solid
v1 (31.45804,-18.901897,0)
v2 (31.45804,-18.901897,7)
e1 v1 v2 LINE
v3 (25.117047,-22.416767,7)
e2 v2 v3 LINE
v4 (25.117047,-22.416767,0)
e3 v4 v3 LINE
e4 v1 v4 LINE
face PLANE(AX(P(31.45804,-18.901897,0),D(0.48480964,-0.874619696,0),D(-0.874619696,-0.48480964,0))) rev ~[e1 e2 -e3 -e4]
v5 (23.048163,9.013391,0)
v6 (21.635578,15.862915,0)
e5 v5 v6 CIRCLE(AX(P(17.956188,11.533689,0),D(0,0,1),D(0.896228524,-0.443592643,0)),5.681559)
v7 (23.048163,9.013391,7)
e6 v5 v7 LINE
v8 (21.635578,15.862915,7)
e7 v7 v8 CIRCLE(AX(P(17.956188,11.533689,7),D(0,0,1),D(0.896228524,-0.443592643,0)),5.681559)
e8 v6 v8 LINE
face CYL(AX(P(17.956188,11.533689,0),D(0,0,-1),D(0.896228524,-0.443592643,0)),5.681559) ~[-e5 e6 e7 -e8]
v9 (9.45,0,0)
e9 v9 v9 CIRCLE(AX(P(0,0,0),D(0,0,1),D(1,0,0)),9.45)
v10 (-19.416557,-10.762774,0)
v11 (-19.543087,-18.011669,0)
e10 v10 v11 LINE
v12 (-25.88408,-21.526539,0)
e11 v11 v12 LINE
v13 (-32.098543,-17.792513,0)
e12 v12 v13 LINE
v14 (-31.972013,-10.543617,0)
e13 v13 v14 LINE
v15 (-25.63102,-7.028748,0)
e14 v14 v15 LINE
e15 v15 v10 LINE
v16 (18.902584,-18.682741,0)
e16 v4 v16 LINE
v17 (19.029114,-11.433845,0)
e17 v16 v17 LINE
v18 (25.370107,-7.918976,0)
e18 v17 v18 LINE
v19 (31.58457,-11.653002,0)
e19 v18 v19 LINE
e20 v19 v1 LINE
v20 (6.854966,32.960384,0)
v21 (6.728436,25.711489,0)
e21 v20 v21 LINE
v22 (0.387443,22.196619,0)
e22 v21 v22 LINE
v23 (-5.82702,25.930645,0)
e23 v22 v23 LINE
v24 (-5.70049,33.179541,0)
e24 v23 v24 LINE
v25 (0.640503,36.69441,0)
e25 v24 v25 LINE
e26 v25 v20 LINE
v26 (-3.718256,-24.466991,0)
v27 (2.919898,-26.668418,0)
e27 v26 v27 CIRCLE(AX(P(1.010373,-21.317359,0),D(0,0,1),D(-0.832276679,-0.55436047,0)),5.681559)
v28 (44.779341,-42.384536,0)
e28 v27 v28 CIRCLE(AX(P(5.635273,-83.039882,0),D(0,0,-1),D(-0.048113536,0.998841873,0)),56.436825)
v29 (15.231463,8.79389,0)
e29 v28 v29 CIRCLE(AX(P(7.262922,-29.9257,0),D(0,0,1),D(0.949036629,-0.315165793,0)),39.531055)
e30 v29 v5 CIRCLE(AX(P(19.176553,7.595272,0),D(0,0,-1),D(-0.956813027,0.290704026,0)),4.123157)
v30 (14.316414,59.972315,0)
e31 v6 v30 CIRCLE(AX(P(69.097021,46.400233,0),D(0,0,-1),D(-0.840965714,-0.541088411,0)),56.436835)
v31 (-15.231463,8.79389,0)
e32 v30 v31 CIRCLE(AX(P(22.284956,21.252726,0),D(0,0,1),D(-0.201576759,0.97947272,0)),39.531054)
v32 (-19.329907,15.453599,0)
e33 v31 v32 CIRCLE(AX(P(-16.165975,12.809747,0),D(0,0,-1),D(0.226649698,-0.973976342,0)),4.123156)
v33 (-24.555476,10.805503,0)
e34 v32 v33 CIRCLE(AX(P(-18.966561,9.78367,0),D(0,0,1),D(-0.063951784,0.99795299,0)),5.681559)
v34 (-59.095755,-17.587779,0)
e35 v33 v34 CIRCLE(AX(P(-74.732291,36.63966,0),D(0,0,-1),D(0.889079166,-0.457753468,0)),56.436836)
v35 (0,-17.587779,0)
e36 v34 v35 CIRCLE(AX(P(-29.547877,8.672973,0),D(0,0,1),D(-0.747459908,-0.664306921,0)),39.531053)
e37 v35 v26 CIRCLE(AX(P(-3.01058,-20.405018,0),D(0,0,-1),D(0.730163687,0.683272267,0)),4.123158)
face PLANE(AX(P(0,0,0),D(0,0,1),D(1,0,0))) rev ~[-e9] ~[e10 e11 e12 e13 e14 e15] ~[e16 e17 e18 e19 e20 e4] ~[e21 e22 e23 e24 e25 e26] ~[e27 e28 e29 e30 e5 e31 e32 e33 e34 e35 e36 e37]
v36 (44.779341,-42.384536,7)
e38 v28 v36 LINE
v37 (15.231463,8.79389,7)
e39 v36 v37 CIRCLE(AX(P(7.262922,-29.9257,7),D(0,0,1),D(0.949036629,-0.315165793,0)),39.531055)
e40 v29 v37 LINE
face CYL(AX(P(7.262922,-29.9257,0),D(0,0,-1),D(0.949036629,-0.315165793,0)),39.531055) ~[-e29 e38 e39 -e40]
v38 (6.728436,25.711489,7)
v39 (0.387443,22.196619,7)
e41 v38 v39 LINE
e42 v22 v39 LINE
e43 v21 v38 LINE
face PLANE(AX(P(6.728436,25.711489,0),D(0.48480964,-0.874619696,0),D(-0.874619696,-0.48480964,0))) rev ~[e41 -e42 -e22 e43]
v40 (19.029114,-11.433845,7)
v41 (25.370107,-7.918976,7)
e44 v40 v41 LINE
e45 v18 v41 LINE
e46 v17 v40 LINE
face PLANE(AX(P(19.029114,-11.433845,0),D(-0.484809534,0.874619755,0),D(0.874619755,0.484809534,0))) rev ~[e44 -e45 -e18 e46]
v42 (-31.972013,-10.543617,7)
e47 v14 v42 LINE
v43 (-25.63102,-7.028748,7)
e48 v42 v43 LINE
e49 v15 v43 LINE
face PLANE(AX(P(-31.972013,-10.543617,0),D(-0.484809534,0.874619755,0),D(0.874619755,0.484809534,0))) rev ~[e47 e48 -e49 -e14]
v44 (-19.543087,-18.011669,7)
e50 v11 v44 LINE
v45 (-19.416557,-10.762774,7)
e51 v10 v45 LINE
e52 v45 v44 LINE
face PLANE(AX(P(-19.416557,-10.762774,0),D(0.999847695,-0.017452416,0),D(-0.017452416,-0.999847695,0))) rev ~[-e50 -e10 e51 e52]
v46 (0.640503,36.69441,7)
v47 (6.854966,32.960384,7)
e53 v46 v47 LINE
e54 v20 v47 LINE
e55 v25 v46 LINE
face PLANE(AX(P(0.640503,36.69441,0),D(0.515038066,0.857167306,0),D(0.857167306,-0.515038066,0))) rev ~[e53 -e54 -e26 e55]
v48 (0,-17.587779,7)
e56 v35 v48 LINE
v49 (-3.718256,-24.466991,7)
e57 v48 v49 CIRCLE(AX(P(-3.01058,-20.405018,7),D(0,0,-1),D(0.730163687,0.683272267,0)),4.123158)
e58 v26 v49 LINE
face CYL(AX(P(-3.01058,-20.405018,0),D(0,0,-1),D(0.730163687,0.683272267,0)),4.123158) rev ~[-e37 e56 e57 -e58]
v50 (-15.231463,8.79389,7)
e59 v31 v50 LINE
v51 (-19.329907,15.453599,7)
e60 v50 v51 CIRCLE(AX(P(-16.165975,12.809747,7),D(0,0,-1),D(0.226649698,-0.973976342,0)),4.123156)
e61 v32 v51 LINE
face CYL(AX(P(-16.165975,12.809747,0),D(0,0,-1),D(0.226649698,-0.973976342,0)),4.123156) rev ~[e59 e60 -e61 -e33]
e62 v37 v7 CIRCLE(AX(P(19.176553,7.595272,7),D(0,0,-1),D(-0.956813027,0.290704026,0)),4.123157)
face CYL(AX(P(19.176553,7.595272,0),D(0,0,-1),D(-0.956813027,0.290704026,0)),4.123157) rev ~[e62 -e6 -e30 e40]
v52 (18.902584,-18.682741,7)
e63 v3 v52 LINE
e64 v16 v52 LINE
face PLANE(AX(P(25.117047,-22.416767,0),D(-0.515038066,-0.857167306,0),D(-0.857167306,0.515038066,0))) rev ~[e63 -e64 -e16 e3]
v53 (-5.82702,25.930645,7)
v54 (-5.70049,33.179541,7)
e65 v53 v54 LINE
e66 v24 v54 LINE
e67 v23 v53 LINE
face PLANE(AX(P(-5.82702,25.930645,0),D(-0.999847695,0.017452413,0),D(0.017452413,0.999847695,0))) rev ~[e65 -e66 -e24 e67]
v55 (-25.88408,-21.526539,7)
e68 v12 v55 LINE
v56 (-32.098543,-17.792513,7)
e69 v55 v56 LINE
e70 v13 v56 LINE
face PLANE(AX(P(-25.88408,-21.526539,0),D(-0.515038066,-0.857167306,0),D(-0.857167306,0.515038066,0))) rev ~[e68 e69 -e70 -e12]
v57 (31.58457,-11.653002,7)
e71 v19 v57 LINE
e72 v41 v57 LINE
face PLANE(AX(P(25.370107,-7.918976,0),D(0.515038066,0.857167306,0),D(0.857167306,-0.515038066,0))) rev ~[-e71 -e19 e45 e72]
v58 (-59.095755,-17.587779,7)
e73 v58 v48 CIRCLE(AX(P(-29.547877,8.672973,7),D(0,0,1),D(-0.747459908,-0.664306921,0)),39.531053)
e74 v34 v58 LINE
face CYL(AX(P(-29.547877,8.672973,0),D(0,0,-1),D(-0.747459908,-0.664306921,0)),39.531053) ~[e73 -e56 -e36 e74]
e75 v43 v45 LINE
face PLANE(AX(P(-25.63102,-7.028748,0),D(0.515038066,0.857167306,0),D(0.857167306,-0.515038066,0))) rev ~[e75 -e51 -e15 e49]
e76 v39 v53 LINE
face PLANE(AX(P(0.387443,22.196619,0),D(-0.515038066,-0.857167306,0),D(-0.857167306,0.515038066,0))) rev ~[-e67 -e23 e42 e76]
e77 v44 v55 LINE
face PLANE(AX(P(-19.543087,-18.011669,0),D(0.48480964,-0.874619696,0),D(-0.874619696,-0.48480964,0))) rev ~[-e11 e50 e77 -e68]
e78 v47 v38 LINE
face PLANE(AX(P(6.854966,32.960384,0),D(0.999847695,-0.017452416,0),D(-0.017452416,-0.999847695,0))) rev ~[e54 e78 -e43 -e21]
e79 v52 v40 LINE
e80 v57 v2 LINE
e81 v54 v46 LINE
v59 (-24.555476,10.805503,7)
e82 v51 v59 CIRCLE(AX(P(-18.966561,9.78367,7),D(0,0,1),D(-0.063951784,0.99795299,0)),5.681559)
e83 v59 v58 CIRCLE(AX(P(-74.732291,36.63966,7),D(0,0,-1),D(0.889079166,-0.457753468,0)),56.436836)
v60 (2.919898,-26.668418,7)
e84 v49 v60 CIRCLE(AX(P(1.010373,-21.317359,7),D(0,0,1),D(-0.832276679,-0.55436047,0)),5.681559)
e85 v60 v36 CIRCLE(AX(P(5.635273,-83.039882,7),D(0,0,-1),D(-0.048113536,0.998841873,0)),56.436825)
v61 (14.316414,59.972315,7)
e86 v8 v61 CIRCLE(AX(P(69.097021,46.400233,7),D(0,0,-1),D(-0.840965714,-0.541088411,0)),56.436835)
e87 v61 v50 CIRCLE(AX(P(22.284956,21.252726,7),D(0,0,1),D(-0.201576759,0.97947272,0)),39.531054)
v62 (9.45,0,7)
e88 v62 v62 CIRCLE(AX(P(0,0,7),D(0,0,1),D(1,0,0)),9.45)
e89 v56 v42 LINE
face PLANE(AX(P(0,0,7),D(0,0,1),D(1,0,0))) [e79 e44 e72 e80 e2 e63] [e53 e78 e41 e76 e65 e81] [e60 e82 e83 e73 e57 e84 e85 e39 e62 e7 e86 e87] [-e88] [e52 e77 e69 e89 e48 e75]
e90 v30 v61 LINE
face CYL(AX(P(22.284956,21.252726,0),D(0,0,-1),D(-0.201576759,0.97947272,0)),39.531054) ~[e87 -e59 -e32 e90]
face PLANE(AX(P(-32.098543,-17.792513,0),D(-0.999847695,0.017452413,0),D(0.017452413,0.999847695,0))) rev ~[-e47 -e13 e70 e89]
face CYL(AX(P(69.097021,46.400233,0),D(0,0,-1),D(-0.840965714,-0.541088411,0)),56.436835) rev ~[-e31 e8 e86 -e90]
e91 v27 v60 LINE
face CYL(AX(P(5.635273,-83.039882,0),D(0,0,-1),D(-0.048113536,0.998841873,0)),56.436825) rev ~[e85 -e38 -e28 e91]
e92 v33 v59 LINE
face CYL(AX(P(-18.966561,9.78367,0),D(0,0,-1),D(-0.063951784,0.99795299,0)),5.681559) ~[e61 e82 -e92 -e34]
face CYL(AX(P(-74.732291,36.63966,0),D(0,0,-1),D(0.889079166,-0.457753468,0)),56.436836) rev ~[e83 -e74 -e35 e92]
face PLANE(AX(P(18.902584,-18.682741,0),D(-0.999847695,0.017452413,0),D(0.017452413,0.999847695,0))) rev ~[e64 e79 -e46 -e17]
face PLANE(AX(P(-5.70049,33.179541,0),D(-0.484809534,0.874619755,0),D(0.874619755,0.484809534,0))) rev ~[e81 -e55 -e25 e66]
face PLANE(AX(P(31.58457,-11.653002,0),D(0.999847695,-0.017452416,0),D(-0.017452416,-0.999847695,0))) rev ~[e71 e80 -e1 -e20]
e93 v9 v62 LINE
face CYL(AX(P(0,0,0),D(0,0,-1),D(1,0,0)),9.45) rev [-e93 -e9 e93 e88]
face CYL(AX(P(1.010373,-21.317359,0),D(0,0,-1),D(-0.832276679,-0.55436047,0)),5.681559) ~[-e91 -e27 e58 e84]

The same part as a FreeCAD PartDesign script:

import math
import FreeCAD as App
import Part
import Sketcher

V = App.Vector
Q = App.Units.Quantity

doc = App.newDocument("Part")
params = doc.addObject("Spreadsheet::Sheet", "Params")
for row, (alias, value) in enumerate([
    ("sketch1_diameter", "18.9 mm"),
    ("sketch1_length", "7.25 mm"),
    ("pad1_length", "7 mm"),
], start=1):
    params.set(f"A{row}", alias)
    params.set(f"B{row}", "=" + value)
    params.setAlias(f"B{row}", alias)

body = doc.addObject("PartDesign::Body", "Body")

# Sketch on XY plane
sketch1 = body.newObject("Sketcher::SketchObject", "Sketch")
sketch1.AttachmentSupport = (doc.getObject("XY_Plane"), [""])
sketch1.MapMode = "FlatFace"
sketch1.addGeometry(Part.ArcOfCircle(Part.Circle(V(-74.7, 36.6, 0), V(0, 0, 1), 56.4), math.radians(-74), math.radians(-27)), False)
sketch1.addGeometry(Part.ArcOfCircle(Part.Circle(V(-29.5, 8.7, 0), V(0, 0, 1), 39.5), math.radians(-138), math.radians(-42)), False)
sketch1.addGeometry(Part.ArcOfCircle(Part.Circle(V(-3, -20.4, 0), V(0, 0, 1), 4.1), math.radians(-100), math.radians(43)), False)
sketch1.addGeometry(Part.ArcOfCircle(Part.Circle(V(1, -21.3, 0), V(0, 0, 1), 5.7), math.radians(-146), math.radians(-70)), False)
sketch1.addGeometry(Part.ArcOfCircle(Part.Circle(V(5.6, -83, 0), V(0, 0, 1), 56.4), math.radians(46), math.radians(93)), False)
sketch1.addGeometry(Part.ArcOfCircle(Part.Circle(V(7.3, -29.9, 0), V(0, 0, 1), 39.5), math.radians(-18), math.radians(78)), False)
sketch1.addGeometry(Part.ArcOfCircle(Part.Circle(V(19.2, 7.6, 0), V(0, 0, 1), 4.1), math.radians(20), math.radians(163)), False)
sketch1.addGeometry(Part.ArcOfCircle(Part.Circle(V(18, 11.5, 0), V(0, 0, 1), 5.7), math.radians(-26), math.radians(50)), False)
sketch1.addGeometry(Part.ArcOfCircle(Part.Circle(V(69.1, 46.4, 0), V(0, 0, 1), 56.4), math.radians(166), math.radians(213)), False)
sketch1.addGeometry(Part.ArcOfCircle(Part.Circle(V(22.3, 21.3, 0), V(0, 0, 1), 39.5), math.radians(102), math.radians(198)), False)
sketch1.addGeometry(Part.ArcOfCircle(Part.Circle(V(-16.2, 12.8, 0), V(0, 0, 1), 4.1), math.radians(140), math.radians(283)), False)
sketch1.addGeometry(Part.ArcOfCircle(Part.Circle(V(-19, 9.8, 0), V(0, 0, 1), 5.7), math.radians(94), math.radians(170)), False)
sketch1.addGeometry(Part.LineSegment(V(-19.5, -18, 0), V(-25.9, -21.5, 0)), False)
sketch1.addGeometry(Part.LineSegment(V(-25.9, -21.5, 0), V(-32.1, -17.8, 0)), False)
sketch1.addGeometry(Part.LineSegment(V(-32.1, -17.8, 0), V(-32, -10.5, 0)), False)
sketch1.addGeometry(Part.LineSegment(V(-32, -10.5, 0), V(-25.6, -7, 0)), False)
sketch1.addGeometry(Part.LineSegment(V(-25.6, -7, 0), V(-19.4, -10.8, 0)), False)
sketch1.addGeometry(Part.LineSegment(V(-19.4, -10.8, 0), V(-19.5, -18, 0)), False)
sketch1.addGeometry(Part.LineSegment(V(25.4, -7.9, 0), V(31.6, -11.7, 0)), False)
sketch1.addGeometry(Part.LineSegment(V(31.6, -11.7, 0), V(31.5, -18.9, 0)), False)
sketch1.addGeometry(Part.LineSegment(V(31.5, -18.9, 0), V(25.1, -22.4, 0)), False)
sketch1.addGeometry(Part.LineSegment(V(25.1, -22.4, 0), V(18.9, -18.7, 0)), False)
sketch1.addGeometry(Part.LineSegment(V(18.9, -18.7, 0), V(19, -11.4, 0)), False)
sketch1.addGeometry(Part.LineSegment(V(19, -11.4, 0), V(25.4, -7.9, 0)), False)
sketch1.addGeometry(Part.Circle(V(0, 0, 0), V(0, 0, 1), 9.4), False)
sketch1.addGeometry(Part.LineSegment(V(-5.8, 25.9, 0), V(-5.7, 33.2, 0)), False)
sketch1.addGeometry(Part.LineSegment(V(-5.7, 33.2, 0), V(0.6, 36.7, 0)), False)
sketch1.addGeometry(Part.LineSegment(V(0.6, 36.7, 0), V(6.9, 33, 0)), False)
sketch1.addGeometry(Part.LineSegment(V(6.9, 33, 0), V(6.7, 25.7, 0)), False)
sketch1.addGeometry(Part.LineSegment(V(6.7, 25.7, 0), V(0.4, 22.2, 0)), False)
sketch1.addGeometry(Part.LineSegment(V(0.4, 22.2, 0), V(-5.8, 25.9, 0)), False)
sketch1.addConstraint(Sketcher.Constraint("Coincident", 0, 1, 1, 1))
sketch1.addConstraint(Sketcher.Constraint("Coincident", 1, 2, 2, 2))
sketch1.addConstraint(Sketcher.Constraint("Coincident", 2, 1, 3, 1))
sketch1.addConstraint(Sketcher.Constraint("Coincident", 3, 2, 4, 2))
sketch1.addConstraint(Sketcher.Constraint("Coincident", 4, 1, 5, 1))
sketch1.addConstraint(Sketcher.Constraint("Coincident", 5, 2, 6, 2))
sketch1.addConstraint(Sketcher.Constraint("Coincident", 6, 1, 7, 1))
sketch1.addConstraint(Sketcher.Constraint("Coincident", 7, 2, 8, 2))
sketch1.addConstraint(Sketcher.Constraint("Coincident", 8, 1, 9, 1))
sketch1.addConstraint(Sketcher.Constraint("Coincident", 9, 2, 10, 2))
sketch1.addConstraint(Sketcher.Constraint("Coincident", 10, 1, 11, 1))
sketch1.addConstraint(Sketcher.Constraint("Coincident", 11, 2, 0, 2))
sketch1.addConstraint(Sketcher.Constraint("Coincident", 12, 2, 13, 1))
sketch1.addConstraint(Sketcher.Constraint("Coincident", 13, 2, 14, 1))
sketch1.addConstraint(Sketcher.Constraint("Coincident", 14, 2, 15, 1))
sketch1.addConstraint(Sketcher.Constraint("Coincident", 15, 2, 16, 1))
sketch1.addConstraint(Sketcher.Constraint("Coincident", 16, 2, 17, 1))
sketch1.addConstraint(Sketcher.Constraint("Coincident", 17, 2, 12, 1))
sketch1.addConstraint(Sketcher.Constraint("Coincident", 18, 2, 19, 1))
sketch1.addConstraint(Sketcher.Constraint("Coincident", 19, 2, 20, 1))
sketch1.addConstraint(Sketcher.Constraint("Coincident", 20, 2, 21, 1))
sketch1.addConstraint(Sketcher.Constraint("Coincident", 21, 2, 22, 1))
sketch1.addConstraint(Sketcher.Constraint("Coincident", 22, 2, 23, 1))
sketch1.addConstraint(Sketcher.Constraint("Coincident", 23, 2, 18, 1))
sketch1.addConstraint(Sketcher.Constraint("Coincident", 25, 2, 26, 1))
sketch1.addConstraint(Sketcher.Constraint("Coincident", 26, 2, 27, 1))
sketch1.addConstraint(Sketcher.Constraint("Coincident", 27, 2, 28, 1))
sketch1.addConstraint(Sketcher.Constraint("Coincident", 28, 2, 29, 1))
sketch1.addConstraint(Sketcher.Constraint("Coincident", 29, 2, 30, 1))
sketch1.addConstraint(Sketcher.Constraint("Coincident", 30, 2, 25, 1))
sketch1.addConstraint(Sketcher.Constraint("Coincident", 24, 3, -1, 1))
sketch1.addConstraint(Sketcher.Constraint("Equal", 1, 5))
sketch1.addConstraint(Sketcher.Constraint("Equal", 2, 6))
sketch1.addConstraint(Sketcher.Constraint("Equal", 3, 7))
sketch1.addConstraint(Sketcher.Constraint("Equal", 0, 8))
sketch1.addConstraint(Sketcher.Constraint("Equal", 5, 9))
sketch1.addConstraint(Sketcher.Constraint("Equal", 6, 10))
sketch1.addConstraint(Sketcher.Constraint("Equal", 7, 11))
sketch1.addConstraint(Sketcher.Constraint("Symmetric", 5, 2, 9, 2, -2))
sketch1.addConstraint(Sketcher.Constraint("PointOnObject", 1, 2, -2))
sketch1.addConstraint(Sketcher.Constraint("Parallel", 12, 15))
sketch1.addConstraint(Sketcher.Constraint("Parallel", 13, 16))
sketch1.addConstraint(Sketcher.Constraint("Parallel", 14, 17))
sketch1.addConstraint(Sketcher.Constraint("Parallel", 16, 18))
sketch1.addConstraint(Sketcher.Constraint("Parallel", 17, 19))
sketch1.addConstraint(Sketcher.Constraint("Parallel", 15, 20))
sketch1.addConstraint(Sketcher.Constraint("Parallel", 18, 21))
sketch1.addConstraint(Sketcher.Constraint("Parallel", 19, 22))
sketch1.addConstraint(Sketcher.Constraint("Parallel", 20, 23))
sketch1.addConstraint(Sketcher.Constraint("Parallel", 22, 25))
sketch1.addConstraint(Sketcher.Constraint("Parallel", 23, 26))
sketch1.addConstraint(Sketcher.Constraint("Parallel", 21, 27))
sketch1.addConstraint(Sketcher.Constraint("Parallel", 25, 28))
sketch1.addConstraint(Sketcher.Constraint("Parallel", 26, 29))
sketch1.addConstraint(Sketcher.Constraint("Parallel", 27, 30))
sketch1.addConstraint(Sketcher.Constraint("Horizontal", 0, 1, 1, 2))
sketch1.addConstraint(Sketcher.Constraint("Equal", 12, 13))
sketch1.addConstraint(Sketcher.Constraint("Equal", 13, 14))
sketch1.addConstraint(Sketcher.Constraint("Equal", 14, 15))
sketch1.addConstraint(Sketcher.Constraint("Equal", 17, 18))
sketch1.addConstraint(Sketcher.Constraint("Equal", 18, 19))
sketch1.addConstraint(Sketcher.Constraint("Equal", 19, 20))
sketch1.addConstraint(Sketcher.Constraint("Equal", 20, 21))
sketch1.addConstraint(Sketcher.Constraint("Equal", 23, 25))
sketch1.addConstraint(Sketcher.Constraint("Equal", 25, 26))
sketch1.addConstraint(Sketcher.Constraint("Equal", 26, 27))
sketch1.addConstraint(Sketcher.Constraint("Equal", 27, 28))
sketch1.addConstraint(Sketcher.Constraint("Diameter", 24, Q("18.9 mm")))
sketch1.addConstraint(Sketcher.Constraint("Angle", 12, Q("-150.999999 deg")))
sketch1.addConstraint(Sketcher.Constraint("Angle", 13, Q("149.000001 deg")))
sketch1.addConstraint(Sketcher.Constraint("Angle", 14, Q("89 deg")))
sketch1.addConstraint(Sketcher.Constraint("Distance", 12, Q("7.25 mm")))
sketch1.addConstraint(Sketcher.Constraint("Radius", 3, Q("5.681559 mm")))
sketch1.addConstraint(Sketcher.Constraint("Radius", 0, Q("56.436836 mm")))
sketch1.addConstraint(Sketcher.Constraint("Radius", 1, Q("39.531053 mm")))
sketch1.addConstraint(Sketcher.Constraint("Radius", 2, Q("4.123158 mm")))
sketch1.addConstraint(Sketcher.Constraint("Radius", 4, Q("56.436825 mm")))
sketch1.addConstraint(Sketcher.Constraint("DistanceY", 5, 3, -1, 1, Q("29.9257 mm")))
sketch1.addConstraint(Sketcher.Constraint("DistanceX", -1, 1, 3, 2, Q("2.919898 mm")))
sketch1.addConstraint(Sketcher.Constraint("DistanceY", -1, 1, 10, 1, Q("15.453599 mm")))
sketch1.addConstraint(Sketcher.Constraint("DistanceX", 3, 3, 4, 3, Q("4.6249 mm")))
sketch1.addConstraint(Sketcher.Constraint("DistanceX", 1, 3, 5, 3, Q("36.8108 mm")))
sketch1.addConstraint(Sketcher.Constraint("DistanceY", 6, 3, 1, 3, Q("1.077702 mm")))
sketch1.addConstraint(Sketcher.Constraint("DistanceX", 5, 3, 8, 3, Q("61.834099 mm")))
sketch1.addConstraint(Sketcher.Constraint("DistanceX", 2, 3, 8, 3, Q("72.107601 mm")))
sketch1.addConstraint(Sketcher.Constraint("DistanceY", 3, 2, 2, 3, Q("6.2634 mm")))
sketch1.addConstraint(Sketcher.Constraint("DistanceY", 5, 2, 7, 3, Q("2.739799 mm")))
sketch1.addConstraint(Sketcher.Constraint("DistanceX", 5, 2, 6, 1, Q("7.8167 mm")))
sketch1.addConstraint(Sketcher.Constraint("DistanceY", 5, 2, 6, 1, Q("0.219501 mm")))
sketch1.addConstraint(Sketcher.Constraint("DistanceY", 7, 2, 8, 1, Q("44.1094 mm")))
sketch1.addConstraint(Sketcher.Constraint("DistanceX", 11, 3, 9, 2, Q("3.735098 mm")))
sketch1.addConstraint(Sketcher.Constraint("DistanceX", 1, 3, 11, 2, Q("4.992402 mm")))
sketch1.addConstraint(Sketcher.Constraint("DistanceX", 11, 2, 10, 3, Q("8.389501 mm")))
sketch1.addConstraint(Sketcher.Constraint("DistanceX", 12, 2, 2, 3, Q("22.8735 mm")))
sketch1.addConstraint(Sketcher.Constraint("DistanceX", 19, 2, 4, 1, Q("13.321301 mm")))
sketch1.addConstraint(Sketcher.Constraint("DistanceX", 0, 3, -1, 1, Q("74.732291 mm")))
sketch1.addConstraint(Sketcher.Constraint("DistanceY", -1, 1, 0, 3, Q("36.63966 mm")))
sketch1.addConstraint(Sketcher.Constraint("DistanceY", 3, 3, -1, 1, Q("21.317359 mm")))
sketch1.addConstraint(Sketcher.Constraint("DistanceX", -1, 1, 7, 2, Q("21.635578 mm")))
sketch1.addConstraint(Sketcher.Constraint("DistanceY", 12, 2, -1, 1, Q("21.526539 mm")))
sketch1.addConstraint(Sketcher.Constraint("DistanceY", 21, 2, -1, 1, Q("18.682741 mm")))
sketch1.addConstraint(Sketcher.Constraint("DistanceX", 25, 2, -1, 1, Q("5.70049 mm")))
sketch1.addConstraint(Sketcher.Constraint("DistanceY", -1, 1, 25, 2, Q("33.179541 mm")))
sketch1.setExpression("Constraints[67]", "Params.sketch1_diameter")
sketch1.setExpression("Constraints[71]", "Params.sketch1_length")
pad1 = body.newObject("PartDesign::Pad", "Pad")
pad1.Profile = sketch1
pad1.setExpression("Length", "Params.pad1_length")

doc.recompute()
